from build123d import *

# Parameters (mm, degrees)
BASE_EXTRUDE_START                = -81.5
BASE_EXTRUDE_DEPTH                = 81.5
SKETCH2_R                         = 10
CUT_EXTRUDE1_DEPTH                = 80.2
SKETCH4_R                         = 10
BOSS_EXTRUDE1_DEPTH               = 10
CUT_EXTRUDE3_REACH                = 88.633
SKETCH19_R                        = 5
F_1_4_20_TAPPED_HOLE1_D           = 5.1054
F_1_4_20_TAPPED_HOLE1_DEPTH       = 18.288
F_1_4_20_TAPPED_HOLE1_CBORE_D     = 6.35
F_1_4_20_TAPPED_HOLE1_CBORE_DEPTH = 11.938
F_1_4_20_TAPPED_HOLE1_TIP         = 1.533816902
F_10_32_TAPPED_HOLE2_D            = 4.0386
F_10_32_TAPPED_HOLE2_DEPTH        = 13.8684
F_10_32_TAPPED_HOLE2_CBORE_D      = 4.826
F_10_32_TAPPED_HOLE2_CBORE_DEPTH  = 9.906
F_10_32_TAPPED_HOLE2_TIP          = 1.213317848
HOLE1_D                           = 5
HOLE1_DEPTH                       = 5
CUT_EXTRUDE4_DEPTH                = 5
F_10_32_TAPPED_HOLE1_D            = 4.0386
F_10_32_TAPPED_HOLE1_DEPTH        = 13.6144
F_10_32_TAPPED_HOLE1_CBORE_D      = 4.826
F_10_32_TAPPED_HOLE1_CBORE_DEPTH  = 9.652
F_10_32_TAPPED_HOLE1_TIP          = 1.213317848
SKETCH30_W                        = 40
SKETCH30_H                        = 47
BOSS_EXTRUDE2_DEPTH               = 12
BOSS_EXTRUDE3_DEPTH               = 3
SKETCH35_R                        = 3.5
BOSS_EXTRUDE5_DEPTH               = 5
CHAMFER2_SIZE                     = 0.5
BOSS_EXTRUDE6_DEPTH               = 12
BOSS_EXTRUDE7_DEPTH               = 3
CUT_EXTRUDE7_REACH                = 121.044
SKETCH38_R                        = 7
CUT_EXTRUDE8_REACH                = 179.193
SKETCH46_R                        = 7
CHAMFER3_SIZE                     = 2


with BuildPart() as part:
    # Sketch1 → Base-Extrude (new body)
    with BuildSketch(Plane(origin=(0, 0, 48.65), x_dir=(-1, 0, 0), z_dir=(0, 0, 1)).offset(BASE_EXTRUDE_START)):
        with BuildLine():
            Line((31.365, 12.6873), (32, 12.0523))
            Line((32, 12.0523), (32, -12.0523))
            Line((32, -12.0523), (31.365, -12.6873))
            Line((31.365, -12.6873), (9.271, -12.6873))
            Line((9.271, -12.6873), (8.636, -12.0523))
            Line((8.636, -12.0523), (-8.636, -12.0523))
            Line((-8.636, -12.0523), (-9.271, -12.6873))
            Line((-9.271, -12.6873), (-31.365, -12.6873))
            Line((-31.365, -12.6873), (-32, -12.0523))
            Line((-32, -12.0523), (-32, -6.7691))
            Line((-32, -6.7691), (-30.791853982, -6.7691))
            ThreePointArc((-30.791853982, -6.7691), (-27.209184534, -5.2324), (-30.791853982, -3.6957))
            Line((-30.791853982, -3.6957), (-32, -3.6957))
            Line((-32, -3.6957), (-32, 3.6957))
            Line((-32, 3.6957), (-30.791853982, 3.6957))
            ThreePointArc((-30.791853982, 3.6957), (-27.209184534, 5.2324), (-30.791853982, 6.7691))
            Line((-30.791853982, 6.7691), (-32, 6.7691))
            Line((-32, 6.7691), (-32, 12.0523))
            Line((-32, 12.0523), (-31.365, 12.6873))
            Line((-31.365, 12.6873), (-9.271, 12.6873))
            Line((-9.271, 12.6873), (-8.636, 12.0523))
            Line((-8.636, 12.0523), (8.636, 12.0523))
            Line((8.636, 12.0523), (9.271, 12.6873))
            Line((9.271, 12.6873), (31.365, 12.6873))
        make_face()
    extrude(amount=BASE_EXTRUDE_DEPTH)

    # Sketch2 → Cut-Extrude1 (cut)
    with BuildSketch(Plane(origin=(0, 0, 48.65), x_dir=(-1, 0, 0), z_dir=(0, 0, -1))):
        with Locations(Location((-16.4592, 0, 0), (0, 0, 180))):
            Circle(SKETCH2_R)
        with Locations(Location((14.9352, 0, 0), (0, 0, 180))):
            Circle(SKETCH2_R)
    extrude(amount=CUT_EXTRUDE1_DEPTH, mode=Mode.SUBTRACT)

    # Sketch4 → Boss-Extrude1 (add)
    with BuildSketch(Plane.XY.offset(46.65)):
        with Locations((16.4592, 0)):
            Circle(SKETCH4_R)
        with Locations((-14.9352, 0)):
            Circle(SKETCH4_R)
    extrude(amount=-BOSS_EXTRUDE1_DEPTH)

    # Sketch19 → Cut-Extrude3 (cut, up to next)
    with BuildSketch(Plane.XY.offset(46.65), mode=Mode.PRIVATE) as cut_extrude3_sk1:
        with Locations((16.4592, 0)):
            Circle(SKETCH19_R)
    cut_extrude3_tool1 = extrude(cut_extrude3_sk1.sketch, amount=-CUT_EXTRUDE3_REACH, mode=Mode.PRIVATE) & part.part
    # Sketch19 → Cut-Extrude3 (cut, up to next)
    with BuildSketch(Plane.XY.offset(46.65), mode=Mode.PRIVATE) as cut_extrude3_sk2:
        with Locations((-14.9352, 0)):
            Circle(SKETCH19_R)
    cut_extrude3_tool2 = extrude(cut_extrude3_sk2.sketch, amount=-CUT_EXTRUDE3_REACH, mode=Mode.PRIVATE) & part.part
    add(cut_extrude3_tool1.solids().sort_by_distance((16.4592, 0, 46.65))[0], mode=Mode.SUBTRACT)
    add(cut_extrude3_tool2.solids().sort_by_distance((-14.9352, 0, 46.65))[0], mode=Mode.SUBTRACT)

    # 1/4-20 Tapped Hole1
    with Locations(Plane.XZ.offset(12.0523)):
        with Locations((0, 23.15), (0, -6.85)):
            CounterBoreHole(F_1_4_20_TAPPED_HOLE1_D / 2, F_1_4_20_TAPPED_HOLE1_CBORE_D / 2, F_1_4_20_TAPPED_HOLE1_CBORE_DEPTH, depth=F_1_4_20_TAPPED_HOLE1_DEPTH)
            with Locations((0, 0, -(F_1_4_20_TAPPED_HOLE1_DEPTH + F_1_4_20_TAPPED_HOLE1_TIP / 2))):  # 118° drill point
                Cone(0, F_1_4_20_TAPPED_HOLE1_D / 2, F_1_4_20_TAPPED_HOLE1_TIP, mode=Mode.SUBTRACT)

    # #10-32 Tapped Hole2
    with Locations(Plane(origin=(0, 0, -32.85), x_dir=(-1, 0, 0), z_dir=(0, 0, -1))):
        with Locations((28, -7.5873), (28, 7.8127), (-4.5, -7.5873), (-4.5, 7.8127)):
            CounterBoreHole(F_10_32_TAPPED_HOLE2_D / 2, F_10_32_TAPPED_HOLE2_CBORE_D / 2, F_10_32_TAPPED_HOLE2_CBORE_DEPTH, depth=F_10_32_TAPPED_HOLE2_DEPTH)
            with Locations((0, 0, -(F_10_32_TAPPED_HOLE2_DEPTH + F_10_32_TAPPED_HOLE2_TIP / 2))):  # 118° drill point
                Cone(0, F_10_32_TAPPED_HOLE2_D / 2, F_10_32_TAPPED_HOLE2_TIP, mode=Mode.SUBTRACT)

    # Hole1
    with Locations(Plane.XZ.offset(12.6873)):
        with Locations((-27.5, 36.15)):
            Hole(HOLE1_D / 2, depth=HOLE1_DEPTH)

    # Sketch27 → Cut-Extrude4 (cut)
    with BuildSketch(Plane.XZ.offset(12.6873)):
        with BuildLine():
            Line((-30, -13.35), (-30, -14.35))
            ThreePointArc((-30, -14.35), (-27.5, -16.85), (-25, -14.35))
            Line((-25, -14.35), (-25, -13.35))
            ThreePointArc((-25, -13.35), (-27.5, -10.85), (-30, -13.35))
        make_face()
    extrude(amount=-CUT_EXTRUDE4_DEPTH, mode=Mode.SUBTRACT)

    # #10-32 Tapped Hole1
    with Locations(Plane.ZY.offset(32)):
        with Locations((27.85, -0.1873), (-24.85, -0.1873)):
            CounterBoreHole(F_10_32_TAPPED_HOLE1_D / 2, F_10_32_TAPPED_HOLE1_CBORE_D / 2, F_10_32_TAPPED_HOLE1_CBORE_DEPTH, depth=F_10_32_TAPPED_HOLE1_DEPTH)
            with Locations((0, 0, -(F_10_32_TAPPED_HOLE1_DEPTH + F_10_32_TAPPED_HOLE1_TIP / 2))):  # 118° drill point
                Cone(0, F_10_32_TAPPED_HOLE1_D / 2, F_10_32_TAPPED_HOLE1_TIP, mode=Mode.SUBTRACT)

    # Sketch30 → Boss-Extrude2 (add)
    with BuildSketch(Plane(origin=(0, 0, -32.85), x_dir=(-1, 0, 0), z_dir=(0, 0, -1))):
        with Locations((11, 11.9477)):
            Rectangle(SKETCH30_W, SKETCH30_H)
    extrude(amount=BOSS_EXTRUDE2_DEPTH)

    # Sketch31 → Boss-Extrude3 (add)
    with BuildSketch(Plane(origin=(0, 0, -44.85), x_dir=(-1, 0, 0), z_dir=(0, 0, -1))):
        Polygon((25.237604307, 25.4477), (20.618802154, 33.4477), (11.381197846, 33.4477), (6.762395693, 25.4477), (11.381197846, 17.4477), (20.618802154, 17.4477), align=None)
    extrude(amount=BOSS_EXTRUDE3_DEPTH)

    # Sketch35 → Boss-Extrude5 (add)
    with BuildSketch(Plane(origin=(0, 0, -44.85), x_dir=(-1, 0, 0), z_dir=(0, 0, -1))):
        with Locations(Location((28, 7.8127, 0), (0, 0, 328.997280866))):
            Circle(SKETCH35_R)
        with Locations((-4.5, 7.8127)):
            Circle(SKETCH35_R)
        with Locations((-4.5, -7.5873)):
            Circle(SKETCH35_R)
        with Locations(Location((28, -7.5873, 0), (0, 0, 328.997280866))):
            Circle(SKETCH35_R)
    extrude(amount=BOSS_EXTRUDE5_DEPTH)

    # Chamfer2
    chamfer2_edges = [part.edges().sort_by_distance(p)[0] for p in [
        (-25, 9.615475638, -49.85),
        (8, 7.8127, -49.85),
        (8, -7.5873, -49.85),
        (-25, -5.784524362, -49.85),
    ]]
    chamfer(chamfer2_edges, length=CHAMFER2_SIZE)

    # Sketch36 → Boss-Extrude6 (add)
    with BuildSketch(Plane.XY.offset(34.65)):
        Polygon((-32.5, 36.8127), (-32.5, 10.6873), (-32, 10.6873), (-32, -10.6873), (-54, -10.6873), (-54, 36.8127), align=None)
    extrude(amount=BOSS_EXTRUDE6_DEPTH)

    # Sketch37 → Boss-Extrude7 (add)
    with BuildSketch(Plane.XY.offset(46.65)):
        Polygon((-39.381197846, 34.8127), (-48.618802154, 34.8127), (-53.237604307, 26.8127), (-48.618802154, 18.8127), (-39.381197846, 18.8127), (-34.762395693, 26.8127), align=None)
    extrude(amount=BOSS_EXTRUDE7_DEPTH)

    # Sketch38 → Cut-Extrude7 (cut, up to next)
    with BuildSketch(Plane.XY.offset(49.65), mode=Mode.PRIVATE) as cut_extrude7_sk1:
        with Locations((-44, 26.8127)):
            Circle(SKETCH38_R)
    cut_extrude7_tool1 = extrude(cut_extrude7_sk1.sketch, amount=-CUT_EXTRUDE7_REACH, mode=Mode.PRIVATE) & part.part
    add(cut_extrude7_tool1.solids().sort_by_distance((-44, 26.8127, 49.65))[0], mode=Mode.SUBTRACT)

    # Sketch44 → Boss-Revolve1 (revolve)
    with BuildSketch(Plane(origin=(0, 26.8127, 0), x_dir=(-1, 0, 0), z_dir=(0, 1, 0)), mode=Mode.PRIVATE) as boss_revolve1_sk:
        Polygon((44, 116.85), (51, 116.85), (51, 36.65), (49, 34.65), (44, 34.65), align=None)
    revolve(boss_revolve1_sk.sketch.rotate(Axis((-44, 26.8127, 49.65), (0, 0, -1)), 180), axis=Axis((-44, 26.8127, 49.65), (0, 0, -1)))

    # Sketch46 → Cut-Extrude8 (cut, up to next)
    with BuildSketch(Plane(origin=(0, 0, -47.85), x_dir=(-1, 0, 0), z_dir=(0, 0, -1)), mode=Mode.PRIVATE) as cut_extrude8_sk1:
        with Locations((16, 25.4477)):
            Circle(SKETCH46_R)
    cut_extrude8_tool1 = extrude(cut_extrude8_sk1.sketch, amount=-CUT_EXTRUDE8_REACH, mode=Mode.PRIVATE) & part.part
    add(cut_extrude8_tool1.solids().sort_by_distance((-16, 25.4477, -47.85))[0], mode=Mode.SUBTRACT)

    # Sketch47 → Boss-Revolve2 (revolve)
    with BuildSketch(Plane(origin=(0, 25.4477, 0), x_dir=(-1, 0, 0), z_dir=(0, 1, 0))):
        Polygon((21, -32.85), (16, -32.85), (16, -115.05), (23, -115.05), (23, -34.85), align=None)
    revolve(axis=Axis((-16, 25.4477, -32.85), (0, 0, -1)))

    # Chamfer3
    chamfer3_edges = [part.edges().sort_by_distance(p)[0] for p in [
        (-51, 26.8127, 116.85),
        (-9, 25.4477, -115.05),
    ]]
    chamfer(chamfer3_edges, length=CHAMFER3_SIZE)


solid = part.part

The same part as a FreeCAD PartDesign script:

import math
import FreeCAD as App
import Part
import Sketcher

V = App.Vector
Q = App.Units.Quantity


def edges_at(feature, points):
    """Names of the edges that pass closest to the given points."""
    edges = feature.Shape.Edges
    near = lambda p: min(range(len(edges)), key=lambda i: edges[i].distToShape(Part.Vertex(*p))[0])
    return sorted({f"Edge{near(p) + 1}" for p in points})

doc = App.newDocument("Part")
body = doc.addObject("PartDesign::Body", "Body")

sketch1 = body.newObject("Sketcher::SketchObject", "Sketch")
sketch1.AttachmentSupport = (doc.getObject("XY_Plane"), [""])
sketch1.MapMode = "FlatFace"
sketch1.AttachmentOffset = App.Placement(V(0, 0, -32.85), App.Rotation())
sketch1.addGeometry([
    Part.LineSegment(V(-32, -12.0523, 0), V(-31.365, -12.6873, 0)),
    Part.LineSegment(V(-31.365, -12.6873, 0), V(-9.271, -12.6873, 0)),
    Part.LineSegment(V(-9.271, -12.6873, 0), V(-8.636, -12.0523, 0)),
    Part.LineSegment(V(-8.636, -12.0523, 0), V(8.636, -12.0523, 0)),
    Part.LineSegment(V(8.636, -12.0523, 0), V(9.271, -12.6873, 0)),
    Part.LineSegment(V(9.271, -12.6873, 0), V(31.365, -12.6873, 0)),
    Part.LineSegment(V(31.365, -12.6873, 0), V(32, -12.0523, 0)),
    Part.LineSegment(V(32, -12.0523, 0), V(32, -6.7691, 0)),
    Part.LineSegment(V(32, -6.7691, 0), V(30.791854, -6.7691, 0)),
    Part.ArcOfCircle(Part.Circle(V(29.330085, -5.2324, 0), V(0, 0, 1), 2.1209), math.radians(46.431501), math.radians(313.568499)),
    Part.LineSegment(V(30.791854, -3.6957, 0), V(32, -3.6957, 0)),
    Part.LineSegment(V(32, -3.6957, 0), V(32, 3.6957, 0)),
    Part.LineSegment(V(32, 3.6957, 0), V(30.791854, 3.6957, 0)),
    Part.ArcOfCircle(Part.Circle(V(29.330085, 5.2324, 0), V(0, 0, 1), 2.1209), math.radians(46.431501), math.radians(313.568499)),
    Part.LineSegment(V(30.791854, 6.7691, 0), V(32, 6.7691, 0)),
    Part.LineSegment(V(32, 6.7691, 0), V(32, 12.0523, 0)),
    Part.LineSegment(V(32, 12.0523, 0), V(31.365, 12.6873, 0)),
    Part.LineSegment(V(31.365, 12.6873, 0), V(9.271, 12.6873, 0)),
    Part.LineSegment(V(9.271, 12.6873, 0), V(8.636, 12.0523, 0)),
    Part.LineSegment(V(8.636, 12.0523, 0), V(-8.636, 12.0523, 0)),
    Part.LineSegment(V(-8.636, 12.0523, 0), V(-9.271, 12.6873, 0)),
    Part.LineSegment(V(-9.271, 12.6873, 0), V(-31.365, 12.6873, 0)),
    Part.LineSegment(V(-31.365, 12.6873, 0), V(-32, 12.0523, 0)),
    Part.LineSegment(V(-32, 12.0523, 0), V(-32, -12.0523, 0)),
], False)
sketch1.addConstraint([
    Sketcher.Constraint("Coincident", 0, 2, 1, 1),
    Sketcher.Constraint("Coincident", 1, 2, 2, 1),
    Sketcher.Constraint("Coincident", 2, 2, 3, 1),
    Sketcher.Constraint("Coincident", 3, 2, 4, 1),
    Sketcher.Constraint("Coincident", 4, 2, 5, 1),
    Sketcher.Constraint("Coincident", 5, 2, 6, 1),
    Sketcher.Constraint("Coincident", 6, 2, 7, 1),
    Sketcher.Constraint("Coincident", 7, 2, 8, 1),
    Sketcher.Constraint("Coincident", 8, 2, 9, 2),
    Sketcher.Constraint("Coincident", 9, 1, 10, 1),
    Sketcher.Constraint("Coincident", 10, 2, 11, 1),
    Sketcher.Constraint("Coincident", 11, 2, 12, 1),
    Sketcher.Constraint("Coincident", 12, 2, 13, 2),
    Sketcher.Constraint("Coincident", 13, 1, 14, 1),
    Sketcher.Constraint("Coincident", 14, 2, 15, 1),
    Sketcher.Constraint("Coincident", 15, 2, 16, 1),
    Sketcher.Constraint("Coincident", 16, 2, 17, 1),
    Sketcher.Constraint("Coincident", 17, 2, 18, 1),
    Sketcher.Constraint("Coincident", 18, 2, 19, 1),
    Sketcher.Constraint("Coincident", 19, 2, 20, 1),
    Sketcher.Constraint("Coincident", 20, 2, 21, 1),
    Sketcher.Constraint("Coincident", 21, 2, 22, 1),
    Sketcher.Constraint("Coincident", 22, 2, 23, 1),
    Sketcher.Constraint("Coincident", 23, 2, 0, 1),
    Sketcher.Constraint("Horizontal", 1),
    Sketcher.Constraint("Horizontal", 3),
    Sketcher.Constraint("Horizontal", 5),
    Sketcher.Constraint("Vertical", 7),
    Sketcher.Constraint("Horizontal", 8),
    Sketcher.Constraint("Horizontal", 10),
    Sketcher.Constraint("Vertical", 11),
    Sketcher.Constraint("Horizontal", 12),
    Sketcher.Constraint("Horizontal", 14),
    Sketcher.Constraint("Vertical", 15),
    Sketcher.Constraint("Horizontal", 17),
    Sketcher.Constraint("Horizontal", 19),
    Sketcher.Constraint("Horizontal", 21),
    Sketcher.Constraint("Vertical", 23),
    Sketcher.Constraint("Equal", 9, 13),
    Sketcher.Constraint("Symmetric", 0, 2, 16, 2, -1, 1),
    Sketcher.Constraint("Symmetric", 2, 2, 18, 2, -1, 1),
    Sketcher.Constraint("Symmetric", 4, 2, 20, 2, -1, 1),
    Sketcher.Constraint("Symmetric", 6, 2, 22, 2, -1, 1),
    Sketcher.Constraint("Symmetric", 15, 2, 23, 2, -1, 1),
    Sketcher.Constraint("Symmetric", 1, 2, 4, 2, -2),
    Sketcher.Constraint("Symmetric", 9, 3, 13, 3, -1),
    Sketcher.Constraint("Perpendicular", 0, 2),
    Sketcher.Constraint("Perpendicular", 2, 4),
    Sketcher.Constraint("Perpendicular", 4, 6),
    Sketcher.Constraint("Perpendicular", 16, 18),
    Sketcher.Constraint("Perpendicular", 18, 20),
    Sketcher.Constraint("Perpendicular", 20, 22),
    Sketcher.Constraint("Horizontal", 3, 2, 6, 2),
    Sketcher.Constraint("Horizontal", 15, 2, 18, 2),
    Sketcher.Constraint("Vertical", 8, 2, 9, 1),
    Sketcher.Constraint("Vertical", 7, 2, 10, 2),
    Sketcher.Constraint("Vertical", 9, 1, 12, 2),
    Sketcher.Constraint("Vertical", 12, 2, 13, 1),
    Sketcher.Constraint("Vertical", 5, 2, 16, 2),
    Sketcher.Constraint("DistanceX", -1, 1, 6, 2, 32.0),
    Sketcher.Constraint("Radius", 9, 2.1209),
    Sketcher.Constraint("DistanceX", 1, 1, 1, 2, 22.094),
    Sketcher.Constraint("DistanceX", 3, 1, 3, 2, 17.272),
    Sketcher.Constraint("DistanceY", 7, 1, 7, 2, 5.2832),
    Sketcher.Constraint("DistanceY", 11, 1, 11, 2, 7.3914),
    Sketcher.Constraint("DistanceY", 23, 2, 23, 1, 24.1046),
    Sketcher.Constraint("DistanceX", 8, 2, 8, 1, 1.208146),
])
pad1 = body.newObject("PartDesign::Pad", "Pad")
pad1.Profile = sketch1
pad1.Length = 81.5

sketch2 = body.newObject("Sketcher::SketchObject", "Sketch001")
sketch2.AttachmentSupport = (doc.getObject("XY_Plane"), [""])
sketch2.MapMode = "FlatFace"
sketch2.AttachmentOffset = App.Placement(V(0, 0, 48.65), App.Rotation())
sketch2.addGeometry([
    Part.Circle(V(16.4592, 0, 0), V(0, 0, 1), 10),
    Part.Circle(V(-14.9352, 0, 0), V(0, 0, 1), 10),
], False)
sketch2.addConstraint([
    Sketcher.Constraint("Equal", 0, 1),
    Sketcher.Constraint("PointOnObject", 0, 3, -1),
    Sketcher.Constraint("PointOnObject", 1, 3, -1),
    Sketcher.Constraint("Diameter", 0, 20.0),
    Sketcher.Constraint("DistanceX", -1, 1, 0, 3, 16.4592),
    Sketcher.Constraint("DistanceX", 1, 3, -1, 1, 14.9352),
])
pocket1 = body.newObject("PartDesign::Pocket", "Pocket")
pocket1.Profile = sketch2
pocket1.Length = 80.2

sketch3 = body.newObject("Sketcher::SketchObject", "Sketch002")
sketch3.AttachmentSupport = (doc.getObject("XY_Plane"), [""])
sketch3.MapMode = "FlatFace"
sketch3.AttachmentOffset = App.Placement(V(0, 0, 46.65), App.Rotation())
sketch3.addGeometry([
    Part.Circle(V(16.4592, 0, 0), V(0, 0, 1), 10),
    Part.Circle(V(-14.9352, 0, 0), V(0, 0, 1), 10),
], False)
sketch3.addConstraint([
    Sketcher.Constraint("Equal", 0, 1),
    Sketcher.Constraint("PointOnObject", 0, 3, -1),
    Sketcher.Constraint("PointOnObject", 1, 3, -1),
    Sketcher.Constraint("Diameter", 0, 20.0),
    Sketcher.Constraint("DistanceX", -1, 1, 0, 3, 16.4592),
    Sketcher.Constraint("DistanceX", 1, 3, -1, 1, 14.9352),
])
pad2 = body.newObject("PartDesign::Pad", "Pad001")
pad2.Profile = sketch3
pad2.Length = 10
pad2.Reversed = True

sketch4 = body.newObject("Sketcher::SketchObject", "Sketch003")
sketch4.AttachmentSupport = (doc.getObject("XY_Plane"), [""])
sketch4.MapMode = "FlatFace"
sketch4.AttachmentOffset = App.Placement(V(0, 0, 46.65), App.Rotation())
sketch4.addGeometry(Part.Circle(V(16.4592, 0, 0), V(0, 0, 1), 5), False)
sketch4.addConstraint([
    Sketcher.Constraint("PointOnObject", 0, 3, -1),
    Sketcher.Constraint("Diameter", 0, 10.0),
    Sketcher.Constraint("DistanceX", -1, 1, 0, 3, 16.4592),
])
pocket2 = body.newObject("PartDesign::Pocket", "Pocket001")
pocket2.Profile = sketch4
pocket2.Type = "UpToFirst"

sketch5 = body.newObject("Sketcher::SketchObject", "Sketch004")
sketch5.AttachmentSupport = (doc.getObject("XY_Plane"), [""])
sketch5.MapMode = "FlatFace"
sketch5.AttachmentOffset = App.Placement(V(0, 0, 46.65), App.Rotation())
sketch5.addGeometry(Part.Circle(V(-14.9352, 0, 0), V(0, 0, 1), 5), False)
sketch5.addConstraint([
    Sketcher.Constraint("PointOnObject", 0, 3, -1),
    Sketcher.Constraint("Diameter", 0, 10.0),
    Sketcher.Constraint("DistanceX", 0, 3, -1, 1, 14.9352),
])
pocket3 = body.newObject("PartDesign::Pocket", "Pocket002")
pocket3.Profile = sketch5
pocket3.Type = "UpToFirst"

sketch6 = body.newObject("Sketcher::SketchObject", "Sketch005")
sketch6.AttachmentSupport = (doc.getObject("XZ_Plane"), [""])
sketch6.MapMode = "FlatFace"
sketch6.AttachmentOffset = App.Placement(V(0, 0, 12.0523), App.Rotation())
sketch6.addGeometry([
    Part.Circle(V(0, 23.15, 0), V(0, 0, 1), 2.5527),
    Part.Circle(V(0, -6.85, 0), V(0, 0, 1), 2.5527),
], False)
sketch6.addConstraint([
    Sketcher.Constraint("Equal", 0, 1),
    Sketcher.Constraint("PointOnObject", 0, 3, -2),
    Sketcher.Constraint("PointOnObject", 1, 3, -2),
    Sketcher.Constraint("DistanceY", 1, 3, 0, 3, 30.0),
    Sketcher.Constraint("Diameter", 0, 5.1054),
    Sketcher.Constraint("DistanceY", -1, 1, 0, 3, 23.15),
])
doc.recompute()
hole = body.newObject("PartDesign::Hole", "Hole")
hole.Profile = sketch6
hole.ThreadType = "None"
hole.Diameter = 5.1054
hole.DepthType = "Dimension"
hole.Depth = 18.288
hole.DrillPoint = "Angled"
hole.DrillPointAngle = 118
hole.HoleCutType = "Counterbore"
hole.HoleCutDiameter = 6.35
hole.HoleCutDepth = 11.938

sketch7 = body.newObject("Sketcher::SketchObject", "Sketch006")
sketch7.AttachmentSupport = (doc.getObject("XY_Plane"), [""])
sketch7.MapMode = "FlatFace"
sketch7.AttachmentOffset = App.Placement(V(0, 0, -32.85), App.Rotation())
sketch7.addGeometry([
    Part.Circle(V(-28, -7.5873, 0), V(0, 0, 1), 2.0193),
    Part.Circle(V(-28, 7.8127, 0), V(0, 0, 1), 2.0193),
    Part.Circle(V(4.5, -7.5873, 0), V(0, 0, 1), 2.0193),
    Part.Circle(V(4.5, 7.8127, 0), V(0, 0, 1), 2.0193),
], False)
sketch7.addConstraint([
    Sketcher.Constraint("Equal", 0, 1),
    Sketcher.Constraint("Equal", 1, 2),
    Sketcher.Constraint("Equal", 2, 3),
    Sketcher.Constraint("Horizontal", 0, 3, 2, 3),
    Sketcher.Constraint("Horizontal", 1, 3, 3, 3),
    Sketcher.Constraint("Vertical", 0, 3, 1, 3),
    Sketcher.Constraint("Vertical", 2, 3, 3, 3),
    Sketcher.Constraint("DistanceX", 0, 3, -1, 1, 28.0),
    Sketcher.Constraint("Diameter", 0, 4.0386),
    Sketcher.Constraint("DistanceX", -1, 1, 2, 3, 4.5),
    Sketcher.Constraint("DistanceY", 0, 3, 1, 3, 15.4),
    Sketcher.Constraint("DistanceY", 0, 3, -1, 1, 7.5873),
])
doc.recompute()
hole2 = body.newObject("PartDesign::Hole", "Hole001")
hole2.Profile = sketch7
hole2.ThreadType = "None"
hole2.Diameter = 4.0386
hole2.DepthType = "Dimension"
hole2.Depth = 13.8684
hole2.DrillPoint = "Angled"
hole2.DrillPointAngle = 118
hole2.HoleCutType = "Counterbore"
hole2.HoleCutDiameter = 4.826
hole2.HoleCutDepth = 9.906
hole2.Reversed = True

sketch8 = body.newObject("Sketcher::SketchObject", "Sketch007")
sketch8.AttachmentSupport = (doc.getObject("XZ_Plane"), [""])
sketch8.MapMode = "FlatFace"
sketch8.AttachmentOffset = App.Placement(V(0, 0, 12.6873), App.Rotation())
sketch8.addGeometry(Part.Circle(V(-27.5, 36.15, 0), V(0, 0, 1), 2.5), False)
sketch8.addConstraint([
    Sketcher.Constraint("Diameter", 0, 5.0),
    Sketcher.Constraint("DistanceX", 0, 3, -1, 1, 27.5),
    Sketcher.Constraint("DistanceY", -1, 1, 0, 3, 36.15),
])
doc.recompute()
hole3 = body.newObject("PartDesign::Hole", "Hole002")
hole3.Profile = sketch8
hole3.ThreadType = "None"
hole3.Diameter = 5
hole3.DepthType = "Dimension"
hole3.Depth = 5
hole3.DrillPoint = "Flat"

sketch9 = body.newObject("Sketcher::SketchObject", "Sketch008")
sketch9.AttachmentSupport = (doc.getObject("XZ_Plane"), [""])
sketch9.MapMode = "FlatFace"
sketch9.AttachmentOffset = App.Placement(V(0, 0, 12.6873), App.Rotation())
sketch9.addGeometry([
    Part.LineSegment(V(-30, -13.35, 0), V(-30, -14.35, 0)),
    Part.ArcOfCircle(Part.Circle(V(-27.5, -14.35, 0), V(0, 0, 1), 2.5), math.radians(180), math.radians(360)),
    Part.LineSegment(V(-25, -14.35, 0), V(-25, -13.35, 0)),
    Part.ArcOfCircle(Part.Circle(V(-27.5, -13.35, 0), V(0, 0, 1), 2.5), math.radians(0), math.radians(180)),
], False)
sketch9.addConstraint([
    Sketcher.Constraint("Tangent", 0, 2, 1, 1),
    Sketcher.Constraint("Tangent", 1, 2, 2, 1),
    Sketcher.Constraint("Tangent", 2, 2, 3, 1),
    Sketcher.Constraint("Tangent", 3, 2, 0, 1),
    Sketcher.Constraint("Vertical", 0),
    Sketcher.Constraint("Vertical", 2),
    Sketcher.Constraint("Radius", 1, 2.5),
    Sketcher.Constraint("DistanceY", 0, 2, 0, 1, 1.0),
    Sketcher.Constraint("DistanceX", 0, 2, -1, 1, 30.0),
    Sketcher.Constraint("DistanceY", 1, 3, -1, 1, 14.35),
])
pocket4 = body.newObject("PartDesign::Pocket", "Pocket003")
pocket4.Profile = sketch9
pocket4.Length = 5

sketch10 = body.newObject("Sketcher::SketchObject", "Sketch009")
sketch10.AttachmentSupport = (doc.getObject("YZ_Plane"), [""])
sketch10.MapMode = "FlatFace"
sketch10.AttachmentOffset = App.Placement(V(0, 0, -32), App.Rotation())
sketch10.addGeometry([
    Part.Circle(V(-0.1873, 27.85, 0), V(0, 0, 1), 2.0193),
    Part.Circle(V(-0.1873, -24.85, 0), V(0, 0, 1), 2.0193),
], False)
sketch10.addConstraint([
    Sketcher.Constraint("Equal", 0, 1),
    Sketcher.Constraint("Vertical", 0, 3, 1, 3),
    Sketcher.Constraint("Diameter", 0, 4.0386),
    Sketcher.Constraint("DistanceY", 1, 3, 0, 3, 52.7),
    Sketcher.Constraint("DistanceY", -1, 1, 0, 3, 27.85),
    Sketcher.Constraint("DistanceX", 0, 3, -1, 1, 0.1873),
])
doc.recompute()
hole4 = body.newObject("PartDesign::Hole", "Hole003")
hole4.Profile = sketch10
hole4.ThreadType = "None"
hole4.Diameter = 4.0386
hole4.DepthType = "Dimension"
hole4.Depth = 13.6144
hole4.DrillPoint = "Angled"
hole4.DrillPointAngle = 118
hole4.HoleCutType = "Counterbore"
hole4.HoleCutDiameter = 4.826
hole4.HoleCutDepth = 9.652
hole4.Reversed = True

sketch11 = body.newObject("Sketcher::SketchObject", "Sketch010")
sketch11.AttachmentSupport = (doc.getObject("XY_Plane"), [""])
sketch11.MapMode = "FlatFace"
sketch11.AttachmentOffset = App.Placement(V(0, 0, -32.85), App.Rotation())
sketch11.addGeometry([
    Part.LineSegment(V(9, 35.4477, 0), V(9, -11.5523, 0)),
    Part.LineSegment(V(9, -11.5523, 0), V(-31, -11.5523, 0)),
    Part.LineSegment(V(-31, -11.5523, 0), V(-31, 35.4477, 0)),
    Part.LineSegment(V(-31, 35.4477, 0), V(9, 35.4477, 0)),
], False)
sketch11.addConstraint([
    Sketcher.Constraint("Coincident", 0, 2, 1, 1),
    Sketcher.Constraint("Coincident", 1, 2, 2, 1),
    Sketcher.Constraint("Coincident", 2, 2, 3, 1),
    Sketcher.Constraint("Coincident", 3, 2, 0, 1),
    Sketcher.Constraint("Vertical", 0),
    Sketcher.Constraint("Horizontal", 1),
    Sketcher.Constraint("Vertical", 2),
    Sketcher.Constraint("Horizontal", 3),
    Sketcher.Constraint("DistanceX", 1, 2, 1, 1, 40.0),
    Sketcher.Constraint("DistanceY", 0, 2, 0, 1, 47.0),
    Sketcher.Constraint("DistanceX", -1, 1, 0, 2, 9.0),
    Sketcher.Constraint("DistanceY", 0, 2, -1, 1, 11.5523),
])
pad3 = body.newObject("PartDesign::Pad", "Pad002")
pad3.Profile = sketch11
pad3.Length = 12
pad3.Reversed = True

sketch12 = body.newObject("Sketcher::SketchObject", "Sketch011")
sketch12.AttachmentSupport = (doc.getObject("XY_Plane"), [""])
sketch12.MapMode = "FlatFace"
sketch12.AttachmentOffset = App.Placement(V(0, 0, -44.85), App.Rotation())
sketch12.addGeometry([
    Part.LineSegment(V(-25.237604, 25.4477, 0), V(-20.618802, 33.4477, 0)),
    Part.LineSegment(V(-20.618802, 33.4477, 0), V(-11.381198, 33.4477, 0)),
    Part.LineSegment(V(-11.381198, 33.4477, 0), V(-6.762396, 25.4477, 0)),
    Part.LineSegment(V(-6.762396, 25.4477, 0), V(-11.381198, 17.4477, 0)),
    Part.LineSegment(V(-11.381198, 17.4477, 0), V(-20.618802, 17.4477, 0)),
    Part.LineSegment(V(-20.618802, 17.4477, 0), V(-25.237604, 25.4477, 0)),
], False)
sketch12.addConstraint([
    Sketcher.Constraint("Coincident", 0, 2, 1, 1),
    Sketcher.Constraint("Coincident", 1, 2, 2, 1),
    Sketcher.Constraint("Coincident", 2, 2, 3, 1),
    Sketcher.Constraint("Coincident", 3, 2, 4, 1),
    Sketcher.Constraint("Coincident", 4, 2, 5, 1),
    Sketcher.Constraint("Coincident", 5, 2, 0, 1),
    Sketcher.Constraint("Horizontal", 1),
    Sketcher.Constraint("Horizontal", 4),
    Sketcher.Constraint("Parallel", 0, 3),
    Sketcher.Constraint("Parallel", 2, 5),
    Sketcher.Constraint("Horizontal", 2, 2, 5, 2),
    Sketcher.Constraint("Vertical", 1, 2, 3, 2),
    Sketcher.Constraint("Vertical", 0, 2, 4, 2),
    Sketcher.Constraint("Angle", 0, Q("60 deg")),
    Sketcher.Constraint("DistanceY", 2, 2, 1, 2, 8.0),
    Sketcher.Constraint("DistanceY", -1, 1, 0, 2, 33.4477),
    Sketcher.Constraint("DistanceX", 1, 1, 1, 2, 9.237604),
    Sketcher.Constraint("DistanceX", 0, 2, -1, 1, 20.618802),
])
pad4 = body.newObject("PartDesign::Pad", "Pad003")
pad4.Profile = sketch12
pad4.Length = 3
pad4.Reversed = True

sketch13 = body.newObject("Sketcher::SketchObject", "Sketch012")
sketch13.AttachmentSupport = (doc.getObject("XY_Plane"), [""])
sketch13.MapMode = "FlatFace"
sketch13.AttachmentOffset = App.Placement(V(0, 0, -44.85), App.Rotation())
sketch13.addGeometry([
    Part.Circle(V(-28, 7.8127, 0), V(0, 0, 1), 3.5),
    Part.Circle(V(4.5, 7.8127, 0), V(0, 0, 1), 3.5),
    Part.Circle(V(4.5, -7.5873, 0), V(0, 0, 1), 3.5),
    Part.Circle(V(-28, -7.5873, 0), V(0, 0, 1), 3.5),
], False)
sketch13.addConstraint([
    Sketcher.Constraint("Equal", 0, 1),
    Sketcher.Constraint("Equal", 1, 2),
    Sketcher.Constraint("Equal", 2, 3),
    Sketcher.Constraint("Horizontal", 0, 3, 1, 3),
    Sketcher.Constraint("Horizontal", 2, 3, 3, 3),
    Sketcher.Constraint("Vertical", 1, 3, 2, 3),
    Sketcher.Constraint("Vertical", 0, 3, 3, 3),
    Sketcher.Constraint("Diameter", 0, 7.0),
    Sketcher.Constraint("DistanceX", 0, 3, -1, 1, 28.0),
    Sketcher.Constraint("DistanceX", -1, 1, 1, 3, 4.5),
    Sketcher.Constraint("DistanceY", 2, 3, 1, 3, 15.4),
    Sketcher.Constraint("DistanceY", -1, 1, 0, 3, 7.8127),
])
pad5 = body.newObject("PartDesign::Pad", "Pad004")
pad5.Profile = sketch13
pad5.Length = 5
pad5.Reversed = True
doc.recompute()

chamfer = body.newObject("PartDesign::Chamfer", "Chamfer")
chamfer.Base = (pad5, edges_at(pad5, [
    (-25, 9.615, -49.85),
    (8, 7.813, -49.85),
    (8, -7.587, -49.85),
    (-25, -5.785, -49.85),
]))
chamfer.Size = 0.5

sketch14 = body.newObject("Sketcher::SketchObject", "Sketch013")
sketch14.AttachmentSupport = (doc.getObject("XY_Plane"), [""])
sketch14.MapMode = "FlatFace"
sketch14.AttachmentOffset = App.Placement(V(0, 0, 34.65), App.Rotation())
sketch14.addGeometry([
    Part.LineSegment(V(-32.5, 10.6873, 0), V(-32.5, 36.8127, 0)),
    Part.LineSegment(V(-32.5, 36.8127, 0), V(-54, 36.8127, 0)),
    Part.LineSegment(V(-54, 36.8127, 0), V(-54, -10.6873, 0)),
    Part.LineSegment(V(-54, -10.6873, 0), V(-32, -10.6873, 0)),
    Part.LineSegment(V(-32, -10.6873, 0), V(-32, 10.6873, 0)),
    Part.LineSegment(V(-32, 10.6873, 0), V(-32.5, 10.6873, 0)),
], False)
sketch14.addConstraint([
    Sketcher.Constraint("Coincident", 0, 2, 1, 1),
    Sketcher.Constraint("Coincident", 1, 2, 2, 1),
    Sketcher.Constraint("Coincident", 2, 2, 3, 1),
    Sketcher.Constraint("Coincident", 3, 2, 4, 1),
    Sketcher.Constraint("Coincident", 4, 2, 5, 1),
    Sketcher.Constraint("Coincident", 5, 2, 0, 1),
    Sketcher.Constraint("Vertical", 0),
    Sketcher.Constraint("Horizontal", 1),
    Sketcher.Constraint("Vertical", 2),
    Sketcher.Constraint("Horizontal", 3),
    Sketcher.Constraint("Vertical", 4),
    Sketcher.Constraint("Horizontal", 5),
    Sketcher.Constraint("DistanceX", 3, 1, 3, 2, 22.0),
    Sketcher.Constraint("DistanceX", 1, 2, 1, 1, 21.5),
    Sketcher.Constraint("DistanceY", 2, 2, 2, 1, 47.5),
    Sketcher.Constraint("DistanceX", 1, 2, -1, 1, 54.0),
    Sketcher.Constraint("DistanceY", 0, 1, 0, 2, 26.1254),
    Sketcher.Constraint("DistanceY", -1, 1, 0, 2, 36.8127),
])
pad6 = body.newObject("PartDesign::Pad", "Pad005")
pad6.Profile = sketch14
pad6.Length = 12

sketch15 = body.newObject("Sketcher::SketchObject", "Sketch014")
sketch15.AttachmentSupport = (doc.getObject("XY_Plane"), [""])
sketch15.MapMode = "FlatFace"
sketch15.AttachmentOffset = App.Placement(V(0, 0, 46.65), App.Rotation())
sketch15.addGeometry([
    Part.LineSegment(V(-39.381198, 34.8127, 0), V(-48.618802, 34.8127, 0)),
    Part.LineSegment(V(-48.618802, 34.8127, 0), V(-53.237604, 26.8127, 0)),
    Part.LineSegment(V(-53.237604, 26.8127, 0), V(-48.618802, 18.8127, 0)),
    Part.LineSegment(V(-48.618802, 18.8127, 0), V(-39.381198, 18.8127, 0)),
    Part.LineSegment(V(-39.381198, 18.8127, 0), V(-34.762396, 26.8127, 0)),
    Part.LineSegment(V(-34.762396, 26.8127, 0), V(-39.381198, 34.8127, 0)),
], False)
sketch15.addConstraint([
    Sketcher.Constraint("Coincident", 0, 2, 1, 1),
    Sketcher.Constraint("Coincident", 1, 2, 2, 1),
    Sketcher.Constraint("Coincident", 2, 2, 3, 1),
    Sketcher.Constraint("Coincident", 3, 2, 4, 1),
    Sketcher.Constraint("Coincident", 4, 2, 5, 1),
    Sketcher.Constraint("Coincident", 5, 2, 0, 1),
    Sketcher.Constraint("Horizontal", 0),
    Sketcher.Constraint("Horizontal", 3),
    Sketcher.Constraint("Parallel", 1, 4),
    Sketcher.Constraint("Parallel", 2, 5),
    Sketcher.Constraint("Horizontal", 1, 2, 4, 2),
    Sketcher.Constraint("Vertical", 0, 2, 2, 2),
    Sketcher.Constraint("Vertical", 3, 2, 5, 2),
    Sketcher.Constraint("Angle", 1, Q("-120 deg")),
    Sketcher.Constraint("DistanceY", 1, 2, 0, 2, 8.0),
    Sketcher.Constraint("DistanceY", -1, 1, 0, 2, 34.8127),
    Sketcher.Constraint("DistanceX", 0, 2, 0, 1, 9.237604),
    Sketcher.Constraint("DistanceX", 0, 2, -1, 1, 48.618802),
])
pad7 = body.newObject("PartDesign::Pad", "Pad006")
pad7.Profile = sketch15
pad7.Length = 3

sketch16 = body.newObject("Sketcher::SketchObject", "Sketch015")
sketch16.AttachmentSupport = (doc.getObject("XY_Plane"), [""])
sketch16.MapMode = "FlatFace"
sketch16.AttachmentOffset = App.Placement(V(0, 0, 49.65), App.Rotation())
sketch16.addGeometry(Part.Circle(V(-44, 26.8127, 0), V(0, 0, 1), 7), False)
sketch16.addConstraint([
    Sketcher.Constraint("Diameter", 0, 14.0),
    Sketcher.Constraint("DistanceX", 0, 3, -1, 1, 44.0),
    Sketcher.Constraint("DistanceY", -1, 1, 0, 3, 26.8127),
])
pocket5 = body.newObject("PartDesign::Pocket", "Pocket004")
pocket5.Profile = sketch16
pocket5.Type = "UpToFirst"

sketch17 = body.newObject("Sketcher::SketchObject", "Sketch016")
sketch17.AttachmentSupport = (doc.getObject("XZ_Plane"), [""])
sketch17.MapMode = "FlatFace"
sketch17.AttachmentOffset = App.Placement(V(0, 0, -26.8127), App.Rotation())
sketch17.addGeometry([
    Part.LineSegment(V(-51, 116.85, 0), V(-44, 116.85, 0)),
    Part.LineSegment(V(-44, 116.85, 0), V(-44, 34.65, 0)),
    Part.LineSegment(V(-44, 34.65, 0), V(-49, 34.65, 0)),
    Part.LineSegment(V(-49, 34.65, 0), V(-51, 36.65, 0)),
    Part.LineSegment(V(-51, 36.65, 0), V(-51, 116.85, 0)),
], False)
sketch17.addGeometry(Part.LineSegment(V(-44, 116.85, 0), V(-44, 34.65, 0)), True)
sketch17.addConstraint([
    Sketcher.Constraint("Coincident", 0, 2, 1, 1),
    Sketcher.Constraint("Coincident", 1, 2, 2, 1),
    Sketcher.Constraint("Coincident", 2, 2, 3, 1),
    Sketcher.Constraint("Coincident", 3, 2, 4, 1),
    Sketcher.Constraint("Coincident", 4, 2, 0, 1),
    Sketcher.Constraint("Horizontal", 0),
    Sketcher.Constraint("Vertical", 1),
    Sketcher.Constraint("Horizontal", 2),
    Sketcher.Constraint("Vertical", 4),
    Sketcher.Constraint("Vertical", 5),
    Sketcher.Constraint("Coincident", 5, 1, 0, 2),
    Sketcher.Constraint("Horizontal", 2, 2, 5, 2),
    Sketcher.Constraint("DistanceX", 0, 1, 0, 2, 7.0),
    Sketcher.Constraint("DistanceX", 2, 2, 2, 1, 5.0),
    Sketcher.Constraint("Angle", 3, Q("135 deg")),
    Sketcher.Constraint("DistanceY", 1, 2, 1, 1, 82.2),
    Sketcher.Constraint("DistanceX", 0, 2, -1, 1, 44.0),
    Sketcher.Constraint("DistanceY", -1, 1, 0, 2, 116.85),
])
revolution = body.newObject("PartDesign::Revolution", "Revolution")
revolution.Profile = sketch17
revolution.ReferenceAxis = (sketch17, ["Axis0"])
revolution.Angle = 360

sketch18 = body.newObject("Sketcher::SketchObject", "Sketch017")
sketch18.AttachmentSupport = (doc.getObject("XY_Plane"), [""])
sketch18.MapMode = "FlatFace"
sketch18.AttachmentOffset = App.Placement(V(0, 0, -47.85), App.Rotation())
sketch18.addGeometry(Part.Circle(V(-16, 25.4477, 0), V(0, 0, 1), 7), False)
sketch18.addConstraint([
    Sketcher.Constraint("Diameter", 0, 14.0),
    Sketcher.Constraint("DistanceX", 0, 3, -1, 1, 16.0),
    Sketcher.Constraint("DistanceY", -1, 1, 0, 3, 25.4477),
])
pocket6 = body.newObject("PartDesign::Pocket", "Pocket005")
pocket6.Profile = sketch18
pocket6.Type = "UpToFirst"
pocket6.Reversed = True

sketch19 = body.newObject("Sketcher::SketchObject", "Sketch018")
sketch19.AttachmentSupport = (doc.getObject("XZ_Plane"), [""])
sketch19.MapMode = "FlatFace"
sketch19.AttachmentOffset = App.Placement(V(0, 0, -25.4477), App.Rotation())
sketch19.addGeometry([
    Part.LineSegment(V(-21, -32.85, 0), V(-16, -32.85, 0)),
    Part.LineSegment(V(-16, -32.85, 0), V(-16, -115.05, 0)),
    Part.LineSegment(V(-16, -115.05, 0), V(-23, -115.05, 0)),
    Part.LineSegment(V(-23, -115.05, 0), V(-23, -34.85, 0)),
    Part.LineSegment(V(-23, -34.85, 0), V(-21, -32.85, 0)),
], False)
sketch19.addGeometry(Part.LineSegment(V(-16, -32.85, 0), V(-16, -115.05, 0)), True)
sketch19.addConstraint([
    Sketcher.Constraint("Coincident", 0, 2, 1, 1),
    Sketcher.Constraint("Coincident", 1, 2, 2, 1),
    Sketcher.Constraint("Coincident", 2, 2, 3, 1),
    Sketcher.Constraint("Coincident", 3, 2, 4, 1),
    Sketcher.Constraint("Coincident", 4, 2, 0, 1),
    Sketcher.Constraint("Horizontal", 0),
    Sketcher.Constraint("Vertical", 1),
    Sketcher.Constraint("Horizontal", 2),
    Sketcher.Constraint("Vertical", 3),
    Sketcher.Constraint("Vertical", 5),
    Sketcher.Constraint("Coincident", 5, 1, 0, 2),
    Sketcher.Constraint("Horizontal", 2, 2, 5, 2),
    Sketcher.Constraint("DistanceX", 0, 1, 0, 2, 5.0),
    Sketcher.Constraint("DistanceX", 2, 2, 2, 1, 7.0),
    Sketcher.Constraint("Angle", 4, Q("45 deg")),
    Sketcher.Constraint("DistanceY", 1, 2, 1, 1, 82.2),
    Sketcher.Constraint("DistanceX", 0, 2, -1, 1, 16.0),
    Sketcher.Constraint("DistanceY", 0, 2, -1, 1, 32.85),
])
revolution2 = body.newObject("PartDesign::Revolution", "Revolution001")
revolution2.Profile = sketch19
revolution2.ReferenceAxis = (sketch19, ["Axis0"])
revolution2.Angle = 360
doc.recompute()

chamfer2 = body.newObject("PartDesign::Chamfer", "Chamfer001")
chamfer2.Base = (revolution2, edges_at(revolution2, [(-51, 26.813, 116.85), (-9, 25.448, -115.05)]))
chamfer2.Size = 2

doc.recompute()
